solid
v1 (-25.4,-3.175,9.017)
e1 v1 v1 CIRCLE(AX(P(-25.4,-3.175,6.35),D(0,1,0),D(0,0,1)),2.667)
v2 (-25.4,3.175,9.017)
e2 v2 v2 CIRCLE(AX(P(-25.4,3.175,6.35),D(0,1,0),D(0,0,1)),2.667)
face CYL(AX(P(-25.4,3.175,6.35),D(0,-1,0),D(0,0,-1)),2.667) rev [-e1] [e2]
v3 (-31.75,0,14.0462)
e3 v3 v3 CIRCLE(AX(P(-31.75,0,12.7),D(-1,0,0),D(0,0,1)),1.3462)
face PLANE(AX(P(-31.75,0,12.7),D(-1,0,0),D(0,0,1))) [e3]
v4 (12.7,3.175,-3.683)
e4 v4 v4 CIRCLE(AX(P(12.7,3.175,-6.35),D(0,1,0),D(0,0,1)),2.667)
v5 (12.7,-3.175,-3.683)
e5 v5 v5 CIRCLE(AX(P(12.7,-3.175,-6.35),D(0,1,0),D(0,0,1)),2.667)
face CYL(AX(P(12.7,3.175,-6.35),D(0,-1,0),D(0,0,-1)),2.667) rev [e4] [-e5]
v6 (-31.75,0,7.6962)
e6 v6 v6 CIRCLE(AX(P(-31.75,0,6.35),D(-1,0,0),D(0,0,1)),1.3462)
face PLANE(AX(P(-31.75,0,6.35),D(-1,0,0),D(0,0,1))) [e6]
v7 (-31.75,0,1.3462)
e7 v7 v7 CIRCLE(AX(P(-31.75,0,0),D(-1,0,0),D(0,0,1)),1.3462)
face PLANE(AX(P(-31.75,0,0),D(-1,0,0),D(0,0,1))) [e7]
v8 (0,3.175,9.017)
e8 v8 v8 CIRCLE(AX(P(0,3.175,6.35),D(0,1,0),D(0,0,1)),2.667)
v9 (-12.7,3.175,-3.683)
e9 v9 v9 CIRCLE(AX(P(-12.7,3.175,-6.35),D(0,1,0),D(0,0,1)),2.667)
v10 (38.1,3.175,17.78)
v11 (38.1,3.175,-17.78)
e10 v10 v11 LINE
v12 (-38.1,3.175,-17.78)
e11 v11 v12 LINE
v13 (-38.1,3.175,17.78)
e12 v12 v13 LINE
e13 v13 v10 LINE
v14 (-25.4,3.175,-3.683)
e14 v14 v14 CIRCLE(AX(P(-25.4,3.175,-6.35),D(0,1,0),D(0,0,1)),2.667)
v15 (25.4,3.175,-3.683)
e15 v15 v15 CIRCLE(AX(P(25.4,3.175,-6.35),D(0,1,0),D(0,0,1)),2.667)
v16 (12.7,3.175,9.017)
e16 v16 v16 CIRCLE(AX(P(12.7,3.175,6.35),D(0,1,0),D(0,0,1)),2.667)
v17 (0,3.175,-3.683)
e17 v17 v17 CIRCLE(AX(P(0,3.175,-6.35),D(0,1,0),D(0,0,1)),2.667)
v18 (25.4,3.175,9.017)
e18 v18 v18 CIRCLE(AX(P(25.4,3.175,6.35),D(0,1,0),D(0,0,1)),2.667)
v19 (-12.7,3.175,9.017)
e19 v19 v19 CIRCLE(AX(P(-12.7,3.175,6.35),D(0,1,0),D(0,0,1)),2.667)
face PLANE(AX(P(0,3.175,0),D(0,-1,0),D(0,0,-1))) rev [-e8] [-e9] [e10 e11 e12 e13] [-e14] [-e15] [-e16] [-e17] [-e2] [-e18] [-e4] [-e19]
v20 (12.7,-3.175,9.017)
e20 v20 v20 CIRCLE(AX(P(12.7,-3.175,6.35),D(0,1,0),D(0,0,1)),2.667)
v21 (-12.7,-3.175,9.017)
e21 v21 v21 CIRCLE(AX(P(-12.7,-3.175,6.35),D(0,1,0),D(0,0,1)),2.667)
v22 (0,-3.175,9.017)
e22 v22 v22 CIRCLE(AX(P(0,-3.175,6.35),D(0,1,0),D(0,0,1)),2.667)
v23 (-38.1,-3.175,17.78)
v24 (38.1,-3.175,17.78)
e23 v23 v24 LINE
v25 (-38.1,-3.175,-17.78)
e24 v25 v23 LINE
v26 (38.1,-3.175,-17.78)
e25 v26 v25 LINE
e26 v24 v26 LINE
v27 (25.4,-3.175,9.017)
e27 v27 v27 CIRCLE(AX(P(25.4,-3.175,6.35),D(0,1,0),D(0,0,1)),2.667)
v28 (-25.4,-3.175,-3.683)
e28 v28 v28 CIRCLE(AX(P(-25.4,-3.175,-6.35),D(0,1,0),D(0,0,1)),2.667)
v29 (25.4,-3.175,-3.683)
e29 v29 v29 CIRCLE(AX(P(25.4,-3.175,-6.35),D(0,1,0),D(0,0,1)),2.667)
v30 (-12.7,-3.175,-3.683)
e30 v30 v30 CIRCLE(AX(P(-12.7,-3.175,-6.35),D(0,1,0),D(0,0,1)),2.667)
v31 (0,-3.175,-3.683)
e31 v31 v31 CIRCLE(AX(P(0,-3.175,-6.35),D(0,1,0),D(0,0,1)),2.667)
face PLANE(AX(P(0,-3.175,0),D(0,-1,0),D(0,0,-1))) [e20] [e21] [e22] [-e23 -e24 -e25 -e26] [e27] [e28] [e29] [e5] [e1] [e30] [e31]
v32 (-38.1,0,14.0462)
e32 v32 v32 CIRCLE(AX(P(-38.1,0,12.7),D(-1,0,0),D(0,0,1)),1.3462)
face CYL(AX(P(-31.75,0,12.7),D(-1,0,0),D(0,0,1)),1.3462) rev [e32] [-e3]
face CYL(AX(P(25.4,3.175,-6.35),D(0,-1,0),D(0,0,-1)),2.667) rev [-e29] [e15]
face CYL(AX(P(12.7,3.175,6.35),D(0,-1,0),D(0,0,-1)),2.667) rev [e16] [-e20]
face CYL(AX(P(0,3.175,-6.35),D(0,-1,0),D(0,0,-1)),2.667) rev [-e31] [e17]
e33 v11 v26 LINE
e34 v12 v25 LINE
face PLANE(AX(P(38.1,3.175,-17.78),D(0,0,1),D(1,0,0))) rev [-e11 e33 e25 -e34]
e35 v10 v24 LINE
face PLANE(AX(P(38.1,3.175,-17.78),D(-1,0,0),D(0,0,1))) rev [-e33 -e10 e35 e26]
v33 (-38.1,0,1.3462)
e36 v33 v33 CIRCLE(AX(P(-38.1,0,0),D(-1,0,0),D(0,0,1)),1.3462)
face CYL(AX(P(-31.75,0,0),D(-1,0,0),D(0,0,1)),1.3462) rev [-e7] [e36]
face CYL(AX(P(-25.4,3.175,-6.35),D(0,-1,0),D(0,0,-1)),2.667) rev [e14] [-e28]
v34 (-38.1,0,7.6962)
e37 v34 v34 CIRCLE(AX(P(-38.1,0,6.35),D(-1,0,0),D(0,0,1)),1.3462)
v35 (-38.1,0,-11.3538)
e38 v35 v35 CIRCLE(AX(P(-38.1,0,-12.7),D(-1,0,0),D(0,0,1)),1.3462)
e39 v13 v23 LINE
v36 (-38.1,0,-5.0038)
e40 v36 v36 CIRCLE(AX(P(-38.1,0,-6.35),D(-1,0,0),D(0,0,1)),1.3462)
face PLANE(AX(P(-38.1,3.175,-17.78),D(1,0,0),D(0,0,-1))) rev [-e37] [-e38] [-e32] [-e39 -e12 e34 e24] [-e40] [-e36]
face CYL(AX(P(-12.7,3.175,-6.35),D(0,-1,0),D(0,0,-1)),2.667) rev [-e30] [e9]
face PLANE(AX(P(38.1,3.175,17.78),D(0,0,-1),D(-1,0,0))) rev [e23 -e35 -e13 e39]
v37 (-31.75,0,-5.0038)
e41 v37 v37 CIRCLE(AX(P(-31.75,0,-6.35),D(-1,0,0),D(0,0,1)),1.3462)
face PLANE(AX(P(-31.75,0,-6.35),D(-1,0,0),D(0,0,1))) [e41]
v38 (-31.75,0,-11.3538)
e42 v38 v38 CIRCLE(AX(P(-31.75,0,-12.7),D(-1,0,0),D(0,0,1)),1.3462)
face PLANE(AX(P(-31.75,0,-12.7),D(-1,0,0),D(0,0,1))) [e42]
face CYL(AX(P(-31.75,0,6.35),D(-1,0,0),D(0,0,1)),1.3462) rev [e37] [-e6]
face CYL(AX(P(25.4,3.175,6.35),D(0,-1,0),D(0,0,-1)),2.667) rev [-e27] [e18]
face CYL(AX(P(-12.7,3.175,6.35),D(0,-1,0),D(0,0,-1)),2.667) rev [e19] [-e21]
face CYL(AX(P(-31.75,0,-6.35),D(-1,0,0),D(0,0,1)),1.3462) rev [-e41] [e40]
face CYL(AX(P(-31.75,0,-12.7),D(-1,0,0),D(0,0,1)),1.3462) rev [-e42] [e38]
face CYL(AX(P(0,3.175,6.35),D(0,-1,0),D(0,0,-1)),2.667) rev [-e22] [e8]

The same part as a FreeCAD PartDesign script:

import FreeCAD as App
import Part
import Sketcher
from FreeCAD import Vector
Q = App.Units.Quantity

doc = App.newDocument("Part")
body = doc.addObject("PartDesign::Body", "Body")

sketch1 = doc.addObject("Sketcher::SketchObject", "Sketch")
body.addObject(sketch1)
sketch1.AttachmentSupport = (doc.XZ_Plane, [""])
sketch1.MapMode = "FlatFace"
sketch1.addGeometry([
    Part.LineSegment(Vector(-38.1, -17.8, 0), Vector(-38.1, 17.8, 0)),
    Part.LineSegment(Vector(-38.1, 17.8, 0), Vector(38.1, 17.8, 0)),
    Part.LineSegment(Vector(38.1, 17.8, 0), Vector(38.1, -17.8, 0)),
    Part.LineSegment(Vector(38.1, -17.8, 0), Vector(-38.1, -17.8, 0)),
    Part.Circle(Vector(-25.4, 6.3, 0), Vector(0, 0, 1), 2.7),
    Part.Circle(Vector(-12.7, 6.3, 0), Vector(0, 0, 1), 2.7),
    Part.Circle(Vector(0, 6.3, 0), Vector(0, 0, 1), 2.7),
    Part.Circle(Vector(12.7, 6.3, 0), Vector(0, 0, 1), 2.7),
    Part.Circle(Vector(25.4, 6.3, 0), Vector(0, 0, 1), 2.7),
    Part.Circle(Vector(-25.4, -6.3, 0), Vector(0, 0, 1), 2.7),
    Part.Circle(Vector(-12.7, -6.3, 0), Vector(0, 0, 1), 2.7),
    Part.Circle(Vector(0, -6.3, 0), Vector(0, 0, 1), 2.7),
    Part.Circle(Vector(12.7, -6.3, 0), Vector(0, 0, 1), 2.7),
    Part.Circle(Vector(25.4, -6.3, 0), Vector(0, 0, 1), 2.7),
], False)
sketch1.addConstraint([
    Sketcher.Constraint("Coincident", 0, 2, 1, 1),
    Sketcher.Constraint("Coincident", 1, 2, 2, 1),
    Sketcher.Constraint("Coincident", 2, 2, 3, 1),
    Sketcher.Constraint("Coincident", 3, 2, 0, 1),
    Sketcher.Constraint("Vertical", 0),
    Sketcher.Constraint("Horizontal", 1),
    Sketcher.Constraint("Vertical", 2),
    Sketcher.Constraint("Horizontal", 3),
    Sketcher.Constraint("Equal", 4, 5),
    Sketcher.Constraint("Equal", 5, 6),
    Sketcher.Constraint("Equal", 6, 7),
    Sketcher.Constraint("Equal", 7, 8),
    Sketcher.Constraint("Equal", 8, 9),
    Sketcher.Constraint("Equal", 9, 10),
    Sketcher.Constraint("Equal", 10, 11),
    Sketcher.Constraint("Equal", 11, 12),
    Sketcher.Constraint("Equal", 12, 13),
    Sketcher.Constraint("Symmetric", 8, 3, 9, 3, -1, 1),
    Sketcher.Constraint("Symmetric", 7, 3, 10, 3, -1, 1),
    Sketcher.Constraint("Symmetric", 6, 3, 11, 3, -1, 1),
    Sketcher.Constraint("Symmetric", 5, 3, 12, 3, -1, 1),
    Sketcher.Constraint("Symmetric", 4, 3, 13, 3, -1, 1),
    Sketcher.Constraint("Symmetric", 0, 2, 2, 2, -1, 1),
    Sketcher.Constraint("Symmetric", 5, 3, 7, 3, -2),
    Sketcher.Constraint("Symmetric", 4, 3, 8, 3, -2),
    Sketcher.Constraint("PointOnObject", 6, 3, -2),
    Sketcher.Constraint("Horizontal", 4, 3, 5, 3),
    Sketcher.Constraint("Horizontal", 5, 3, 6, 3),
    Sketcher.Constraint("Diameter", 4, Q("0.21 in")),
    Sketcher.Constraint("DistanceX", 1, 1, 1, 2, Q("3 in")),
    Sketcher.Constraint("DistanceY", 0, 1, 0, 2, Q("1.4 in")),
    Sketcher.Constraint("DistanceX", 4, 3, -1, 1, Q("1 in")),
    Sketcher.Constraint("DistanceX", 5, 3, 7, 3, Q("1 in")),
    Sketcher.Constraint("DistanceY", 9, 3, 4, 3, Q("0.5 in")),
])
pad1 = doc.addObject("PartDesign::Pad", "Pad")
body.addObject(pad1)
pad1.Profile = sketch1
pad1.Length = Q("0.25 in")
pad1.Midplane = True

sketch2 = doc.addObject("Sketcher::SketchObject", "Sketch001")
body.addObject(sketch2)
sketch2.AttachmentSupport = (doc.YZ_Plane, [""])
sketch2.MapMode = "FlatFace"
sketch2.AttachmentOffset = App.Placement(Vector(0, 0, -1.5 * 25.4), App.Rotation())
sketch2.addGeometry([
    Part.Circle(Vector(0, -12.7, 0), Vector(0, 0, 1), 1.3),
    Part.Circle(Vector(0, -6.3, 0), Vector(0, 0, 1), 1.3),
    Part.Circle(Vector(0, 0, 0), Vector(0, 0, 1), 1.3),
    Part.Circle(Vector(0, 6.3, 0), Vector(0, 0, 1), 1.3),
    Part.Circle(Vector(0, 12.7, 0), Vector(0, 0, 1), 1.3),
], False)
sketch2.addConstraint([
    Sketcher.Constraint("Coincident", 2, 3, -1, 1),
    Sketcher.Constraint("Equal", 0, 1),
    Sketcher.Constraint("Equal", 1, 2),
    Sketcher.Constraint("Equal", 2, 3),
    Sketcher.Constraint("Equal", 3, 4),
    Sketcher.Constraint("Symmetric", 1, 3, 3, 3, -1, 1),
    Sketcher.Constraint("Symmetric", 0, 3, 4, 3, -1, 1),
    Sketcher.Constraint("PointOnObject", 0, 3, -2),
    Sketcher.Constraint("PointOnObject", 1, 3, -2),
    Sketcher.Constraint("Diameter", 0, Q("0.106 in")),
    Sketcher.Constraint("DistanceY", 0, 3, 4, 3, Q("1 in")),
    Sketcher.Constraint("DistanceY", 1, 3, 3, 3, Q("0.5 in")),
])
pocket1 = doc.addObject("PartDesign::Pocket", "Pocket")
body.addObject(pocket1)
pocket1.Profile = sketch2
pocket1.Length = Q("0.25 in")
pocket1.Reversed = True

doc.recompute()
